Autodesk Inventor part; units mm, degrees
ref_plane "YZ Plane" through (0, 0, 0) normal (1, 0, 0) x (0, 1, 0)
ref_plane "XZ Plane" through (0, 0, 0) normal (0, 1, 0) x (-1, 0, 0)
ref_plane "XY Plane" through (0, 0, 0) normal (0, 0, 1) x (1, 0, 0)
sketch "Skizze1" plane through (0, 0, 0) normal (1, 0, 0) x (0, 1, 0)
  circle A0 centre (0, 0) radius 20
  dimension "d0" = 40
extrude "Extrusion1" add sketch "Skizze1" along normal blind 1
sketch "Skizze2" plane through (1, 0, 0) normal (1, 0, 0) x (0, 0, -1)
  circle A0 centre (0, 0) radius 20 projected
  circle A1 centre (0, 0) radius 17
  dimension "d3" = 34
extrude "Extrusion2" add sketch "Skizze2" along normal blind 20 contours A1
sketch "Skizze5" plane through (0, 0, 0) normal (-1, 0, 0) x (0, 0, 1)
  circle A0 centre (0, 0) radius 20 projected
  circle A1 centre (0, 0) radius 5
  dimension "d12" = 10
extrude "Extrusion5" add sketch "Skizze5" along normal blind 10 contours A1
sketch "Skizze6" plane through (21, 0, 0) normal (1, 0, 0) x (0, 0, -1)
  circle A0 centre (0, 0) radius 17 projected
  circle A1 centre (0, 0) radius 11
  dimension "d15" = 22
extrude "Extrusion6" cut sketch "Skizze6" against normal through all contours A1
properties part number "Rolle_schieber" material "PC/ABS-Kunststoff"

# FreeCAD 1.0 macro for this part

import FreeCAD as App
import Part
import Sketcher

doc = App.newDocument("Part")
body = doc.addObject("PartDesign::Body", "Body")

sketch1 = body.newObject("Sketcher::SketchObject", "Sketch")
sketch1.AttachmentSupport = (doc.getObject("YZ_Plane"), [""])
sketch1.MapMode = "FlatFace"
sketch1.addGeometry(Part.Circle(App.Vector(0, 0, 0), App.Vector(0, 0, 1), 20), False)
sketch1.addConstraint(Sketcher.Constraint("Coincident", 0, 3, -1, 1))
sketch1.addConstraint(Sketcher.Constraint("Diameter", 0, 40.0))
pad1 = body.newObject("PartDesign::Pad", "Pad")
pad1.Profile = sketch1
pad1.Length = 1

sketch2 = body.newObject("Sketcher::SketchObject", "Sketch001")
sketch2.AttachmentSupport = (doc.getObject("YZ_Plane"), [""])
sketch2.MapMode = "FlatFace"
sketch2.AttachmentOffset = App.Placement(App.Vector(0, 0, 1), App.Rotation())
sketch2.addGeometry(Part.Circle(App.Vector(0, 0, 0), App.Vector(0, 0, 1), 17), False)
sketch2.addConstraint(Sketcher.Constraint("Coincident", 0, 3, -1, 1))
sketch2.addConstraint(Sketcher.Constraint("Diameter", 0, 34.0))
pad2 = body.newObject("PartDesign::Pad", "Pad001")
pad2.Profile = sketch2
pad2.Length = 20

sketch3 = body.newObject("Sketcher::SketchObject", "Sketch002")
sketch3.AttachmentSupport = (doc.getObject("YZ_Plane"), [""])
sketch3.MapMode = "FlatFace"
sketch3.addGeometry(Part.Circle(App.Vector(0, 0, 0), App.Vector(0, 0, 1), 5), False)
sketch3.addConstraint(Sketcher.Constraint("Coincident", 0, 3, -1, 1))
sketch3.addConstraint(Sketcher.Constraint("Diameter", 0, 10.0))
pad3 = body.newObject("PartDesign::Pad", "Pad002")
pad3.Profile = sketch3
pad3.Length = 10
pad3.Reversed = True

sketch4 = body.newObject("Sketcher::SketchObject", "Sketch003")
sketch4.AttachmentSupport = (doc.getObject("YZ_Plane"), [""])
sketch4.MapMode = "FlatFace"
sketch4.AttachmentOffset = App.Placement(App.Vector(0, 0, 21), App.Rotation())
sketch4.addGeometry(Part.Circle(App.Vector(0, 0, 0), App.Vector(0, 0, 1), 11), False)
sketch4.addConstraint(Sketcher.Constraint("Coincident", 0, 3, -1, 1))
sketch4.addConstraint(Sketcher.Constraint("Diameter", 0, 22.0))
pocket1 = body.newObject("PartDesign::Pocket", "Pocket")
pocket1.Profile = sketch4
pocket1.Type = "ThroughAll"

doc.recompute()
